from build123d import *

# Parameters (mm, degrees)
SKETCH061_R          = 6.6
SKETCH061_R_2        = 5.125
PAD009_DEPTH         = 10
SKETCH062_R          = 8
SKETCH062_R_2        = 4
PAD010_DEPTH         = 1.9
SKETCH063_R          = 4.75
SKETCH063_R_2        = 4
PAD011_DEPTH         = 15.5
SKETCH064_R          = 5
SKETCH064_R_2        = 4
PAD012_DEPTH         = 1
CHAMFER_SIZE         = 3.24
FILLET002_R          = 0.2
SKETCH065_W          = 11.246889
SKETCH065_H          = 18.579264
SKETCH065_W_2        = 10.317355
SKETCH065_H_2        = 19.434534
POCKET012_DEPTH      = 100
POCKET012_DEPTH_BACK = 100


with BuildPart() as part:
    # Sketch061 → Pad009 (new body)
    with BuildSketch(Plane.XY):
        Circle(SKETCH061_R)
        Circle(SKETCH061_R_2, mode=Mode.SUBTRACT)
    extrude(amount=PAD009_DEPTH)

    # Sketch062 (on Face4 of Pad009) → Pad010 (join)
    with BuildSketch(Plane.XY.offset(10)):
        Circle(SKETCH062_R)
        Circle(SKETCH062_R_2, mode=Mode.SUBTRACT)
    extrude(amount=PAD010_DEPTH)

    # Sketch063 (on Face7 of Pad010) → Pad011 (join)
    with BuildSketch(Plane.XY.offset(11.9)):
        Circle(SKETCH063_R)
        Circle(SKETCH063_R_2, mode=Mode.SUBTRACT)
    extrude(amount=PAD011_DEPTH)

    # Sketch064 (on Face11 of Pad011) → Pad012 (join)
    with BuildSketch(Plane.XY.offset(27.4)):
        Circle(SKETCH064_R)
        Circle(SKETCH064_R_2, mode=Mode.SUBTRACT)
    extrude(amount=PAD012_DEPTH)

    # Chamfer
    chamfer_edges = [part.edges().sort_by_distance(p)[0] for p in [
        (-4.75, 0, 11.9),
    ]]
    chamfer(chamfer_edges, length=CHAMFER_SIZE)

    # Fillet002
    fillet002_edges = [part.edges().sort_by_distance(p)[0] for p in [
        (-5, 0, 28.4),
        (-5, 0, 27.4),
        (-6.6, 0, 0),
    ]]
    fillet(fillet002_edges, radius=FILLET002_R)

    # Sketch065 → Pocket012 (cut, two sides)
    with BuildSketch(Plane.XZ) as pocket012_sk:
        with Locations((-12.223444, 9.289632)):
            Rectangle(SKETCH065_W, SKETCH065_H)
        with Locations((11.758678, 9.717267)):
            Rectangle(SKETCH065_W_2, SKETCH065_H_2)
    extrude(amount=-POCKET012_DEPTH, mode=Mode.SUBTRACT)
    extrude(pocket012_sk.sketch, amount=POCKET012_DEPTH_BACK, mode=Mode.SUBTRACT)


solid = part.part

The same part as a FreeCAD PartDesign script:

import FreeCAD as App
import Part
import Sketcher

V = App.Vector
Q = App.Units.Quantity


def edges_at(feature, points):
    """Names of the edges that pass closest to the given points."""
    edges = feature.Shape.Edges
    near = lambda p: min(range(len(edges)), key=lambda i: edges[i].distToShape(Part.Vertex(*p))[0])
    return sorted({f"Edge{near(p) + 1}" for p in points})


def add_polygon(sketch, points):
    """Adds a closed chain of lines whose ends are joined by coincident constraints."""
    first, n = sketch.GeometryCount, len(points)
    for a, b in zip(points, points[1:] + points[:1]):
        sketch.addGeometry(Part.LineSegment(App.Vector(*a, 0), App.Vector(*b, 0)), False)
    for i in range(n):
        sketch.addConstraint(Sketcher.Constraint("Coincident", first + i, 2, first + (i + 1) % n, 1))

doc = App.newDocument("Part")
body = doc.addObject("PartDesign::Body", "Body")

# Sketch on XY plane
sketch1 = body.newObject("Sketcher::SketchObject", "Sketch")
sketch1.AttachmentSupport = (doc.getObject("XY_Plane"), [""])
sketch1.MapMode = "FlatFace"
sketch1.addGeometry([
    Part.Circle(V(0, 0, 0), V(0, 0, 1), 7),
    Part.Circle(V(0, 0, 0), V(0, 0, 1), 5),
], False)
sketch1.addConstraint([
    Sketcher.Constraint("Coincident", 0, 3, -1, 1),
    Sketcher.Constraint("Coincident", 1, 3, -1, 1),
    Sketcher.Constraint("Diameter", 0, Q("13.2 mm")),
    Sketcher.Constraint("Diameter", 1, Q("10.25 mm")),
])
pad1 = body.newObject("PartDesign::Pad", "Pad")
pad1.Profile = sketch1
pad1.Length = 10

# Sketch on XY plane
sketch2 = body.newObject("Sketcher::SketchObject", "Sketch001")
sketch2.AttachmentSupport = (doc.getObject("XY_Plane"), [""])
sketch2.MapMode = "FlatFace"
sketch2.AttachmentOffset = App.Placement(V(0, 0, 10), App.Rotation())
sketch2.addGeometry([
    Part.Circle(V(0, 0, 0), V(0, 0, 1), 8),
    Part.Circle(V(0, 0, 0), V(0, 0, 1), 4),
], False)
sketch2.addConstraint([
    Sketcher.Constraint("Coincident", 0, 3, -1, 1),
    Sketcher.Constraint("Coincident", 1, 3, -1, 1),
    Sketcher.Constraint("Diameter", 0, Q("16 mm")),
    Sketcher.Constraint("Diameter", 1, Q("8 mm")),
])
pad2 = body.newObject("PartDesign::Pad", "Pad001")
pad2.Profile = sketch2
pad2.Length = 1.9

# Sketch on XY plane
sketch3 = body.newObject("Sketcher::SketchObject", "Sketch002")
sketch3.AttachmentSupport = (doc.getObject("XY_Plane"), [""])
sketch3.MapMode = "FlatFace"
sketch3.AttachmentOffset = App.Placement(V(0, 0, 11.9), App.Rotation())
sketch3.addGeometry([
    Part.Circle(V(0, 0, 0), V(0, 0, 1), 4.8),
    Part.Circle(V(0, 0, 0), V(0, 0, 1), 4),
], False)
sketch3.addConstraint([
    Sketcher.Constraint("Coincident", 0, 3, -1, 1),
    Sketcher.Constraint("Coincident", 1, 3, -1, 1),
    Sketcher.Constraint("Diameter", 1, Q("8 mm")),
    Sketcher.Constraint("Diameter", 0, Q("9.5 mm")),
])
pad3 = body.newObject("PartDesign::Pad", "Pad002")
pad3.Profile = sketch3
pad3.Length = 15.5

# Sketch on XY plane
sketch4 = body.newObject("Sketcher::SketchObject", "Sketch003")
sketch4.AttachmentSupport = (doc.getObject("XY_Plane"), [""])
sketch4.MapMode = "FlatFace"
sketch4.AttachmentOffset = App.Placement(V(0, 0, 27.4), App.Rotation())
sketch4.addGeometry([
    Part.Circle(V(0, 0, 0), V(0, 0, 1), 5),
    Part.Circle(V(0, 0, 0), V(0, 0, 1), 4),
], False)
sketch4.addConstraint([
    Sketcher.Constraint("Coincident", 0, 3, -1, 1),
    Sketcher.Constraint("Coincident", 1, 3, -1, 1),
    Sketcher.Constraint("Diameter", 0, Q("10 mm")),
    Sketcher.Constraint("Diameter", 1, Q("8 mm")),
])
pad4 = body.newObject("PartDesign::Pad", "Pad003")
pad4.Profile = sketch4
pad4.Length = 1
doc.recompute()

chamfer = body.newObject("PartDesign::Chamfer", "Chamfer")
chamfer.Base = (pad4, edges_at(pad4, [(-4.75, 0, 11.9)]))
chamfer.Size = 3.24
doc.recompute()

fillet = body.newObject("PartDesign::Fillet", "Fillet")
fillet.Base = (chamfer, edges_at(chamfer, [(-5, 0, 28.4), (-5, 0, 27.4), (-6.6, 0, 0)]))
fillet.Radius = 0.2

# Sketch on XZ plane
sketch5 = body.newObject("Sketcher::SketchObject", "Sketch004")
sketch5.AttachmentSupport = (doc.getObject("XZ_Plane"), [""])
sketch5.MapMode = "FlatFace"
add_polygon(sketch5, [(-18, 19), (-18, 0), (-7, 0), (-7, 19)])  # lines 0-3
add_polygon(sketch5, [(7, 19), (7, 0), (17, 0), (17, 19)])  # lines 4-7
sketch5.addConstraint([
    Sketcher.Constraint("Vertical", 0),
    Sketcher.Constraint("Horizontal", 1),
    Sketcher.Constraint("Vertical", 2),
    Sketcher.Constraint("Horizontal", 3),
    Sketcher.Constraint("Vertical", 4),
    Sketcher.Constraint("Horizontal", 5),
    Sketcher.Constraint("Vertical", 6),
    Sketcher.Constraint("Horizontal", 7),
    Sketcher.Constraint("Symmetric", 1, 2, 4, 2, -1, 1),
    Sketcher.Constraint("PointOnObject", 0, 2, -1),
    Sketcher.Constraint("DistanceX", 1, 2, -1, 1, Q("6.6 mm")),
    Sketcher.Constraint("DistanceX", 1, 1, 1, 2, Q("11.246889 mm")),
    Sketcher.Constraint("DistanceX", 5, 1, 5, 2, Q("10.317355 mm")),
    Sketcher.Constraint("DistanceY", 0, 2, 0, 1, Q("18.579264 mm")),
    Sketcher.Constraint("DistanceY", 4, 2, 4, 1, Q("19.434534 mm")),
])
pocket1 = body.newObject("PartDesign::Pocket", "Pocket")
pocket1.Profile = sketch5
pocket1.Type = "ThroughAll"
pocket1.Midplane = True

doc.recompute()
